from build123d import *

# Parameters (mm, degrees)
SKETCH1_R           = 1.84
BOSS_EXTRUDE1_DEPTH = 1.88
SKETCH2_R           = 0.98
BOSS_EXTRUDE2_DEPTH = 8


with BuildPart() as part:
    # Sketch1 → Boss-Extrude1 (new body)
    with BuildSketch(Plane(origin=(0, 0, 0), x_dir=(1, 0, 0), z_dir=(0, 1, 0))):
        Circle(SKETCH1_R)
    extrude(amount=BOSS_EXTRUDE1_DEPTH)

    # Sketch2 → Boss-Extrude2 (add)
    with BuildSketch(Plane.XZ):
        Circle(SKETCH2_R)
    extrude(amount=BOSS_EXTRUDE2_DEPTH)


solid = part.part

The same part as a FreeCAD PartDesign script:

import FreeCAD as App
import Part
import Sketcher
from FreeCAD import Vector

doc = App.newDocument("Part")
body = doc.addObject("PartDesign::Body", "Body")

sketch1 = body.newObject("Sketcher::SketchObject", "Sketch")
sketch1.AttachmentSupport = (doc.getObject("XZ_Plane"), [""])
sketch1.MapMode = "FlatFace"
sketch1.addGeometry(Part.Circle(Vector(0, 0, 0), Vector(0, 0, 1), 1.84), False)
sketch1.addConstraint([
    Sketcher.Constraint("Coincident", 0, 3, -1, 1),
    Sketcher.Constraint("Diameter", 0, 3.68),
])
pad1 = body.newObject("PartDesign::Pad", "Pad")
pad1.Profile = sketch1
pad1.Length = 1.88
pad1.Reversed = True

sketch2 = body.newObject("Sketcher::SketchObject", "Sketch001")
sketch2.AttachmentSupport = (doc.getObject("XZ_Plane"), [""])
sketch2.MapMode = "FlatFace"
sketch2.addGeometry(Part.Circle(Vector(0, 0, 0), Vector(0, 0, 1), 0.98), False)
sketch2.addConstraint([
    Sketcher.Constraint("Coincident", 0, 3, -1, 1),
    Sketcher.Constraint("Diameter", 0, 1.96),
])
pad2 = body.newObject("PartDesign::Pad", "Pad001")
pad2.Profile = sketch2
pad2.Length = 8

doc.recompute()
